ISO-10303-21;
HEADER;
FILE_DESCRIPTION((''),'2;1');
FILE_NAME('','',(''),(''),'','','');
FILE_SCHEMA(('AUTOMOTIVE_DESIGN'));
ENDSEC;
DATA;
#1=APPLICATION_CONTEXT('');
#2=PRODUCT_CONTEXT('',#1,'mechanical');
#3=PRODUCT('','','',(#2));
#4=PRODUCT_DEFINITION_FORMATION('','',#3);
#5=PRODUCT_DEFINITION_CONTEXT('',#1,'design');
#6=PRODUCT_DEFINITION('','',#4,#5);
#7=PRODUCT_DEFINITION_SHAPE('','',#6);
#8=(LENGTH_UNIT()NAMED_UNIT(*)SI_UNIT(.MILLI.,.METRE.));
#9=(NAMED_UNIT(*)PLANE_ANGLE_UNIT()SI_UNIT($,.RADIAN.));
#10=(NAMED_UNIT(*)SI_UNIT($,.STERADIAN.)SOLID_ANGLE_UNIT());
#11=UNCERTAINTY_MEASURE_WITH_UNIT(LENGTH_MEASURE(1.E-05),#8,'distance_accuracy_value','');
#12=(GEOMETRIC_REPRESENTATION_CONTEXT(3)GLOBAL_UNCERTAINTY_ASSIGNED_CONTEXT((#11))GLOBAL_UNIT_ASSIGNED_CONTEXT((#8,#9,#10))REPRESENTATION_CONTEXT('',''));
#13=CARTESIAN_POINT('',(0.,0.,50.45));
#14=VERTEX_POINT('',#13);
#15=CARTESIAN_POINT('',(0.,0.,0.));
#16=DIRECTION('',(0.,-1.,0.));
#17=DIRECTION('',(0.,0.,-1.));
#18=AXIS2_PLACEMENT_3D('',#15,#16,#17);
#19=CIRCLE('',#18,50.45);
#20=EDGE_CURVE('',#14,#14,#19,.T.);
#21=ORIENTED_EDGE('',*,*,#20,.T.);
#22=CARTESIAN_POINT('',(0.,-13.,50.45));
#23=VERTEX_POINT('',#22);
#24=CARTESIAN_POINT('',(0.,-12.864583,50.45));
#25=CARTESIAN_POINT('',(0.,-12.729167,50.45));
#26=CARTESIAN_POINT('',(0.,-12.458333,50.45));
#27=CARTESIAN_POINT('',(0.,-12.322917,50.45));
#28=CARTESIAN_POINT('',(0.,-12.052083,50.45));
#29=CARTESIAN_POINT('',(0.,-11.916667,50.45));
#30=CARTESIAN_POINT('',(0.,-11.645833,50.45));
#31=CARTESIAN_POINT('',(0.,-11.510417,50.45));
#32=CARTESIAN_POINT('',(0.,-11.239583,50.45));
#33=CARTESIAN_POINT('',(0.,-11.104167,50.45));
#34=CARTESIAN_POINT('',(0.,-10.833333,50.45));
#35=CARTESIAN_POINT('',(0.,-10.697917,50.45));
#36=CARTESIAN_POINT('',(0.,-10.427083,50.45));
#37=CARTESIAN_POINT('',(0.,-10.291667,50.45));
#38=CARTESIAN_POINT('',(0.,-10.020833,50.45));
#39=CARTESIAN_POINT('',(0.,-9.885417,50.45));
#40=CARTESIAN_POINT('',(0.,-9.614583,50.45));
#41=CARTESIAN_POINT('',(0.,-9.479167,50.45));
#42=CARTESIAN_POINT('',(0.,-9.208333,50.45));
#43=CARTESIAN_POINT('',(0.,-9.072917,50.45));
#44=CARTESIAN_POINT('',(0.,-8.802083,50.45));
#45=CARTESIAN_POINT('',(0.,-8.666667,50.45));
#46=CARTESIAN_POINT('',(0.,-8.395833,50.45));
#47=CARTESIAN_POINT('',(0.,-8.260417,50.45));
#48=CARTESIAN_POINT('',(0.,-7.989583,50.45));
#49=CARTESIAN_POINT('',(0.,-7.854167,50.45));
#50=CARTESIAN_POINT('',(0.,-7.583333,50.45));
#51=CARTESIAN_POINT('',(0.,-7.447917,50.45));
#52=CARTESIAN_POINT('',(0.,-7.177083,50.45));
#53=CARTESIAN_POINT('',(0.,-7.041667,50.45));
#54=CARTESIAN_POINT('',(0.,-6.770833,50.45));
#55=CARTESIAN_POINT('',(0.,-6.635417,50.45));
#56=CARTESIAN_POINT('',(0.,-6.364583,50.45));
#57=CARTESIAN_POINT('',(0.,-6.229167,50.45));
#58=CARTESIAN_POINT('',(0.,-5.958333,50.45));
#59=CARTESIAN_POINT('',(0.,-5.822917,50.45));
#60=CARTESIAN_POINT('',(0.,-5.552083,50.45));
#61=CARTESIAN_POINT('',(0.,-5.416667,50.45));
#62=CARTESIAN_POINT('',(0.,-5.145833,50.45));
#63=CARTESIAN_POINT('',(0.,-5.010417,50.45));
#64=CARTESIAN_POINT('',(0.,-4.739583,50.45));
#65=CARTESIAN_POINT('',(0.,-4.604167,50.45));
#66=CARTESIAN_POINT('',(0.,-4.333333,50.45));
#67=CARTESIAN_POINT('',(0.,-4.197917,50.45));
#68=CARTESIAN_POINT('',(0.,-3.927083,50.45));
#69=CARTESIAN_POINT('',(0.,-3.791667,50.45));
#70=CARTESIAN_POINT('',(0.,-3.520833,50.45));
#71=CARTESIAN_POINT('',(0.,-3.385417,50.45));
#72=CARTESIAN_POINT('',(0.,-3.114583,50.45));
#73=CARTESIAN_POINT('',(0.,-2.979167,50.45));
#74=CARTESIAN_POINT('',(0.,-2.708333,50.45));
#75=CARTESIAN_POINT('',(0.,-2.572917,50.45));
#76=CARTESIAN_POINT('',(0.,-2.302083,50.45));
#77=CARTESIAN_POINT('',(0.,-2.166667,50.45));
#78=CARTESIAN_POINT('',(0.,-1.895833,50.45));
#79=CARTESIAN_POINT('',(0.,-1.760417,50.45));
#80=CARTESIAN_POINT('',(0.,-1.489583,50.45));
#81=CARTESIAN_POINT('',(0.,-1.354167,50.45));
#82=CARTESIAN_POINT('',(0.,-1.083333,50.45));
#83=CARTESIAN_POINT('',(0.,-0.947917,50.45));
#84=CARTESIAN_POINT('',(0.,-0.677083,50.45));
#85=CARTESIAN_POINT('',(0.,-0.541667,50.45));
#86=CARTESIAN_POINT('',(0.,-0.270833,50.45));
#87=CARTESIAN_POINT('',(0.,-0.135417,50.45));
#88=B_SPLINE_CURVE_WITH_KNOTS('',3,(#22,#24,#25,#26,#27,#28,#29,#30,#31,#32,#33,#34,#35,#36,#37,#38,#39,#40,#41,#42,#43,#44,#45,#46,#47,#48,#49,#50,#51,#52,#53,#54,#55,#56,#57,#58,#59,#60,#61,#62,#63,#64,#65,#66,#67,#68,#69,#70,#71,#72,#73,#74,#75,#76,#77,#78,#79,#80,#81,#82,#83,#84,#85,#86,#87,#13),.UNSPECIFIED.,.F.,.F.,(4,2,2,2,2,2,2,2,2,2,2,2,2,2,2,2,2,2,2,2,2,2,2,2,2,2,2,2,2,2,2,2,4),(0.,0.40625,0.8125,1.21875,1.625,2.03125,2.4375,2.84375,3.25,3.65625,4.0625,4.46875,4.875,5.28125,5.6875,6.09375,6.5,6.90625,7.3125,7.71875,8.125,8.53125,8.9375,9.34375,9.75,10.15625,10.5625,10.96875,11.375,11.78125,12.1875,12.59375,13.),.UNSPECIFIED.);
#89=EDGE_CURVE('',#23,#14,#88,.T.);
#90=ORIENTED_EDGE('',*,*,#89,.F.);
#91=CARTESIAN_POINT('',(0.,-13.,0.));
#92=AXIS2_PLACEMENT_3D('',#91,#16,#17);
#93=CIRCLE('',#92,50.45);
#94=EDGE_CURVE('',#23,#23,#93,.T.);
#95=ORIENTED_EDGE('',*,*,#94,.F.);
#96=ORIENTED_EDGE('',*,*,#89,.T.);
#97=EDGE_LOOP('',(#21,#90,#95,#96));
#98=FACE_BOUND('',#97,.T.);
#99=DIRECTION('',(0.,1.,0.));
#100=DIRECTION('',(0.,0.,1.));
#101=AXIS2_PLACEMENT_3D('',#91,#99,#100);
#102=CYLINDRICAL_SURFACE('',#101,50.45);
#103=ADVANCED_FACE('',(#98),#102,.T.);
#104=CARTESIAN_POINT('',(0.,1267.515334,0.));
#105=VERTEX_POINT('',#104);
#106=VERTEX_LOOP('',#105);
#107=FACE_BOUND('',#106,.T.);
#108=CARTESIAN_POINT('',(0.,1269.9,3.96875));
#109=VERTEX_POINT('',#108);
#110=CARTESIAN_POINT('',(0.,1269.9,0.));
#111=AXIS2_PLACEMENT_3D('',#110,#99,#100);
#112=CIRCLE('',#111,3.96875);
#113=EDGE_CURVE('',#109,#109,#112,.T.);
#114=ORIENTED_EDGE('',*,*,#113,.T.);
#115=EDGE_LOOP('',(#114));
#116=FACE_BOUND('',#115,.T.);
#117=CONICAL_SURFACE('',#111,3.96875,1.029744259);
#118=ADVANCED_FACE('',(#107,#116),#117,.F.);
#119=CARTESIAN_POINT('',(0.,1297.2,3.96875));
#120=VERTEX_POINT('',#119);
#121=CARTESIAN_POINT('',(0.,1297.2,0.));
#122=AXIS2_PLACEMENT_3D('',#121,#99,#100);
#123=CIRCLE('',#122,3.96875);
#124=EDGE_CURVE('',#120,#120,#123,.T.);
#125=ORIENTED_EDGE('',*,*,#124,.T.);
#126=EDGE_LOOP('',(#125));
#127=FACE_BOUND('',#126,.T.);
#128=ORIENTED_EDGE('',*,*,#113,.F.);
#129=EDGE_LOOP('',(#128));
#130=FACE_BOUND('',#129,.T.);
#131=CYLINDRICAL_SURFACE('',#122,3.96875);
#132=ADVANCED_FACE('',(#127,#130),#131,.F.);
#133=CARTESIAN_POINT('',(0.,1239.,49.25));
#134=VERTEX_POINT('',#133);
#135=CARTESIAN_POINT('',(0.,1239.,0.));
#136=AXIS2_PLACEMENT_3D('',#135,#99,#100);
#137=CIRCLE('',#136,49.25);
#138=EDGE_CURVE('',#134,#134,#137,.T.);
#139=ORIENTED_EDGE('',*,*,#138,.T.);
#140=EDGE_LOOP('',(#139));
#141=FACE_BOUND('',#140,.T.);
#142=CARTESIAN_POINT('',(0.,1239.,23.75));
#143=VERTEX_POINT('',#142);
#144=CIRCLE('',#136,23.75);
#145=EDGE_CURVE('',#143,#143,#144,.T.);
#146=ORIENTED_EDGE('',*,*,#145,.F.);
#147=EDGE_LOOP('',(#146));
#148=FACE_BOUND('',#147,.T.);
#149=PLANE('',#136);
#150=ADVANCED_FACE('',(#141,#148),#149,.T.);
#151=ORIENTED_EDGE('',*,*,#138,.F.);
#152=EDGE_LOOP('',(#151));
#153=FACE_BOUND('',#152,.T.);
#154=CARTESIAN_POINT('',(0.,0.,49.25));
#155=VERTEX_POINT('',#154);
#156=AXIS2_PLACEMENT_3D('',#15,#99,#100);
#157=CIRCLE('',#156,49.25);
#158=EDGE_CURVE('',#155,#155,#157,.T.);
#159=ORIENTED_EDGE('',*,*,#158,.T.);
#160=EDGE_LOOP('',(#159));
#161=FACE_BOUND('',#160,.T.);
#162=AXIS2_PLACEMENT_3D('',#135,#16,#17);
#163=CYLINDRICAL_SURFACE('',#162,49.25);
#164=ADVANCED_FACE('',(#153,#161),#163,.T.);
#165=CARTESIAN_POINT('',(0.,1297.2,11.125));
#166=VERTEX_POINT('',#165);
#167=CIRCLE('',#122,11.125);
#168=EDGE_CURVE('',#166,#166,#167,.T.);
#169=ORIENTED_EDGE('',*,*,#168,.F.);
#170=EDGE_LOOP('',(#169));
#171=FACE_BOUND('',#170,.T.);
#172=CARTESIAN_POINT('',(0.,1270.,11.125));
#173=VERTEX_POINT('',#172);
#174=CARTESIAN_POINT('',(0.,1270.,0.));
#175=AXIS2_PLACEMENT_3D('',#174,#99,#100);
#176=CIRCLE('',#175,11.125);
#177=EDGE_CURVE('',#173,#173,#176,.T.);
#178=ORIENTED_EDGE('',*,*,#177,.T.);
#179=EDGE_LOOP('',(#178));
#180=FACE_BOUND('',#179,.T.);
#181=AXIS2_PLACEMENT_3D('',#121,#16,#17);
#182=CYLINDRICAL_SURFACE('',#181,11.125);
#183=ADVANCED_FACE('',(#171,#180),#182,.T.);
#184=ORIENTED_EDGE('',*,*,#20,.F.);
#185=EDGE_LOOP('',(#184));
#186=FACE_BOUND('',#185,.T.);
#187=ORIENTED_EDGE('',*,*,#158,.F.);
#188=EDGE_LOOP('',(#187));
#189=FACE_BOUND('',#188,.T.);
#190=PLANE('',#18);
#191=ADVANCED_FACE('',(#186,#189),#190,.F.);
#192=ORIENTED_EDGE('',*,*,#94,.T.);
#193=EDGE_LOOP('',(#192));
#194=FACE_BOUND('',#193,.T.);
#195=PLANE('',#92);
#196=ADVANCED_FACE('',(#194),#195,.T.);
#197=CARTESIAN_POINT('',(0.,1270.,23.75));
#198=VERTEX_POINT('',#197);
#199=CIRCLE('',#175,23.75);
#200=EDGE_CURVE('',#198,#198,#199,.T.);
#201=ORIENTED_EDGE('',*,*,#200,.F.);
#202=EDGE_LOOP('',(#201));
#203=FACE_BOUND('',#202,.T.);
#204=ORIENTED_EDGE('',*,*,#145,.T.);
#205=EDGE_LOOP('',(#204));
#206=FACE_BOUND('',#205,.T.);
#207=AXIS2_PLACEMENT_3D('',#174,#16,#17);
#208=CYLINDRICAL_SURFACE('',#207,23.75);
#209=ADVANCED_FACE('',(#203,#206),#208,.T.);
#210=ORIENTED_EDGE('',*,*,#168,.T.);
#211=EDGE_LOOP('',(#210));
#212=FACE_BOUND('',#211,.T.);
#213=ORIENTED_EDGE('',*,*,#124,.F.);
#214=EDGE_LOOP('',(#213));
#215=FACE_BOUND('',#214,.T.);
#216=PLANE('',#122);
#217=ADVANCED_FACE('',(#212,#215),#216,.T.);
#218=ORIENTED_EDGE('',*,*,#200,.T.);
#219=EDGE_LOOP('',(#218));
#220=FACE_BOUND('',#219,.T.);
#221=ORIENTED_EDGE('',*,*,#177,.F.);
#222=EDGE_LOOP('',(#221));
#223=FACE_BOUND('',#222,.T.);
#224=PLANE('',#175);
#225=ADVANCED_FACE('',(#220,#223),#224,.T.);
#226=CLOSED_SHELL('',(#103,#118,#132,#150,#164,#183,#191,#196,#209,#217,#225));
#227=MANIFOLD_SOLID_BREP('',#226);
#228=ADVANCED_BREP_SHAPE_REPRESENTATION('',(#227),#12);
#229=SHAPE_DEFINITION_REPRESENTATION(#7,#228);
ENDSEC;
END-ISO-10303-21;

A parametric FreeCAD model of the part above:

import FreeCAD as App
import Part
import Sketcher

doc = App.newDocument("Part")
body = doc.addObject("PartDesign::Body", "Body")

sketch1 = body.newObject("Sketcher::SketchObject", "Sketch")
sketch1.AttachmentSupport = (doc.getObject("XZ_Plane"), [""])
sketch1.MapMode = "FlatFace"
sketch1.addGeometry(Part.Circle(App.Vector(0, 0, 0), App.Vector(0, 0, 1), 49.25), False)
sketch1.addConstraint([
    Sketcher.Constraint("Coincident", 0, 3, -1, 1),
    Sketcher.Constraint("Diameter", 0, 98.5),
])
pad1 = body.newObject("PartDesign::Pad", "Pad")
pad1.Profile = sketch1
pad1.Length = 1239
pad1.Reversed = True

sketch2 = body.newObject("Sketcher::SketchObject", "Sketch001")
sketch2.AttachmentSupport = (doc.getObject("XZ_Plane"), [""])
sketch2.MapMode = "FlatFace"
sketch2.addGeometry(Part.Circle(App.Vector(0, 0, 0), App.Vector(0, 0, 1), 50.45), False)
sketch2.addConstraint([
    Sketcher.Constraint("Coincident", 0, 3, -1, 1),
    Sketcher.Constraint("Diameter", 0, 100.9),
])
pad2 = body.newObject("PartDesign::Pad", "Pad001")
pad2.Profile = sketch2
pad2.Length = 13

sketch3 = body.newObject("Sketcher::SketchObject", "Sketch002")
sketch3.AttachmentSupport = (doc.getObject("XZ_Plane"), [""])
sketch3.MapMode = "FlatFace"
sketch3.AttachmentOffset = App.Placement(App.Vector(0, 0, -1239), App.Rotation())
sketch3.addGeometry(Part.Circle(App.Vector(0, 0, 0), App.Vector(0, 0, 1), 23.75), False)
sketch3.addConstraint([
    Sketcher.Constraint("Coincident", 0, 3, -1, 1),
    Sketcher.Constraint("Diameter", 0, 47.5),
])
pad3 = body.newObject("PartDesign::Pad", "Pad002")
pad3.Profile = sketch3
pad3.Length = 31
pad3.Reversed = True

sketch4 = body.newObject("Sketcher::SketchObject", "Sketch003")
sketch4.AttachmentSupport = (doc.getObject("XZ_Plane"), [""])
sketch4.MapMode = "FlatFace"
sketch4.AttachmentOffset = App.Placement(App.Vector(0, 0, -1270), App.Rotation())
sketch4.addGeometry(Part.Circle(App.Vector(0, 0, 0), App.Vector(0, 0, 1), 11.125), False)
sketch4.addConstraint([
    Sketcher.Constraint("Coincident", 0, 3, -1, 1),
    Sketcher.Constraint("Diameter", 0, 22.25),
])
pad4 = body.newObject("PartDesign::Pad", "Pad003")
pad4.Profile = sketch4
pad4.Length = 27.2
pad4.Reversed = True

sketch5 = body.newObject("Sketcher::SketchObject", "Sketch004")
sketch5.AttachmentSupport = (doc.getObject("XZ_Plane"), [""])
sketch5.MapMode = "FlatFace"
sketch5.AttachmentOffset = App.Placement(App.Vector(0, 0, -1297.2), App.Rotation())
sketch5.addGeometry(Part.Circle(App.Vector(0, 0, 0), App.Vector(0, 0, 1), 3.96875), False)
sketch5.addConstraint([
    Sketcher.Constraint("Coincident", 0, 3, -1, 1),
    Sketcher.Constraint("Diameter", 0, 7.9375),
])
doc.recompute()
hole = body.newObject("PartDesign::Hole", "Hole")
hole.Profile = sketch5
hole.ThreadType = "None"
hole.Diameter = 7.9375
hole.DepthType = "Dimension"
hole.Depth = 27.3
hole.DrillPoint = "Angled"
hole.DrillPointAngle = 118
hole.Reversed = True

doc.recompute()
